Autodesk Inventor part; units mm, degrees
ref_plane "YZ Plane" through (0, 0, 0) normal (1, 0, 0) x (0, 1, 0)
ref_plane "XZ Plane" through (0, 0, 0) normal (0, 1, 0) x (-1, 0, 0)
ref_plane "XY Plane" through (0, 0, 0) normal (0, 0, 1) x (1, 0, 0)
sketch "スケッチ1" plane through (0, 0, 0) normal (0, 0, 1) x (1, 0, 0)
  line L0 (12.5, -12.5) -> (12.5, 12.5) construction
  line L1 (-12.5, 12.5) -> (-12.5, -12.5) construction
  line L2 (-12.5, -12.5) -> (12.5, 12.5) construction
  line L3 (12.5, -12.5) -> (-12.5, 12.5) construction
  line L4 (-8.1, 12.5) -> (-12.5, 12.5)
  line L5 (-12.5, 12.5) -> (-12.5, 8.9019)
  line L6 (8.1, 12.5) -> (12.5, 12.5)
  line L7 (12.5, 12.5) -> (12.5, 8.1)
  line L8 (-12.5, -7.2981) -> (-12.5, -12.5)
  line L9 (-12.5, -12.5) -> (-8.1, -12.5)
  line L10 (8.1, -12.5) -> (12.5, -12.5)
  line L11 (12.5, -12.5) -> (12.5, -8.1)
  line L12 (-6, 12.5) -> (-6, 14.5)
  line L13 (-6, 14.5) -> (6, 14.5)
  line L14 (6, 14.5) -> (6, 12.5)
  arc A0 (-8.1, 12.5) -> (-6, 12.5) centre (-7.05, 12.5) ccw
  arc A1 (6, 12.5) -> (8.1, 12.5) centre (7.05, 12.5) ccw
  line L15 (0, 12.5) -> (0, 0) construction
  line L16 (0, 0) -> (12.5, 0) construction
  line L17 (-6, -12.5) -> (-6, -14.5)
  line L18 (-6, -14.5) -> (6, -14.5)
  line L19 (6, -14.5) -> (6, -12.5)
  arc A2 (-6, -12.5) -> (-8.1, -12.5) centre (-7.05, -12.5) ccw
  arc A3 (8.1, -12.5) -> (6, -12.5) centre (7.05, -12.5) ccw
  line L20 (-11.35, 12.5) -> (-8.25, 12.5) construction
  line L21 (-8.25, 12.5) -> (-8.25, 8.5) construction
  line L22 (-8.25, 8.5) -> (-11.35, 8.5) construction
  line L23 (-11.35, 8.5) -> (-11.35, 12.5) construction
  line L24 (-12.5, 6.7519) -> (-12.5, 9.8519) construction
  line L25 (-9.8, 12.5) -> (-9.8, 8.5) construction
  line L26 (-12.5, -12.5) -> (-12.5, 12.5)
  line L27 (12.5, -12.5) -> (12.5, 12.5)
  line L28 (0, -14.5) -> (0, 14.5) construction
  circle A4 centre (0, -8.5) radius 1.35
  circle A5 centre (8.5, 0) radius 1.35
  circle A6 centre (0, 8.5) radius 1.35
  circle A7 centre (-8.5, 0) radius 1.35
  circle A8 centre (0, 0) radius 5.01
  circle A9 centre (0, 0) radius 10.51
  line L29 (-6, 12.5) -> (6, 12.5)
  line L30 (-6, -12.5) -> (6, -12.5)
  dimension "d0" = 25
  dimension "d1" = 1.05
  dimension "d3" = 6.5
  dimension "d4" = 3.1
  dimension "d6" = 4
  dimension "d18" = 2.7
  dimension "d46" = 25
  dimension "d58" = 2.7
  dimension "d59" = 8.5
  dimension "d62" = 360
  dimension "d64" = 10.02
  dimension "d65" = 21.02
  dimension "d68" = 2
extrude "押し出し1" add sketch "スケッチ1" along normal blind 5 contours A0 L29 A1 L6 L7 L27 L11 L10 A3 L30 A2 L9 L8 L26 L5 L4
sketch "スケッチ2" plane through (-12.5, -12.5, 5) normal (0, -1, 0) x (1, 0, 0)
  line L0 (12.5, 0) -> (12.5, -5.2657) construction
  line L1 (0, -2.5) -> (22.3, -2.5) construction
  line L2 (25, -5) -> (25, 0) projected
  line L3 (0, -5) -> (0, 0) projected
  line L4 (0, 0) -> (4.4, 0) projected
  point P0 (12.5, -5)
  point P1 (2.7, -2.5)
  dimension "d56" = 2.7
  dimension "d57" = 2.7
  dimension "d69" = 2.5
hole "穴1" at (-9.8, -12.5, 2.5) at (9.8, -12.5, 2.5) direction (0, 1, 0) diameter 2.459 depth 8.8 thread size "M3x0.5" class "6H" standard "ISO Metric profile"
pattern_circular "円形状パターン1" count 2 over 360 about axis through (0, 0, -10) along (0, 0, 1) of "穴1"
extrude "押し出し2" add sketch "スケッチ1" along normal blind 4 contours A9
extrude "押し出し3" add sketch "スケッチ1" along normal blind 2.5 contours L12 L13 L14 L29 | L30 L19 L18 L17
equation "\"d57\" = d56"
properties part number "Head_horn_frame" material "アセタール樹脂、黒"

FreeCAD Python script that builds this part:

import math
import FreeCAD as App
import Part
import Sketcher


def add_polygon(sketch, points):
    """Adds a closed chain of lines whose ends are joined by coincident constraints."""
    first, n = sketch.GeometryCount, len(points)
    for a, b in zip(points, points[1:] + points[:1]):
        sketch.addGeometry(Part.LineSegment(App.Vector(*a, 0), App.Vector(*b, 0)), False)
    for i in range(n):
        sketch.addConstraint(Sketcher.Constraint("Coincident", first + i, 2, first + (i + 1) % n, 1))

doc = App.newDocument("Part")
body = doc.addObject("PartDesign::Body", "Body")

# Sketch on XY plane
sketch1 = body.newObject("Sketcher::SketchObject", "Sketch")
sketch1.AttachmentSupport = (doc.getObject("XY_Plane"), [""])
sketch1.MapMode = "FlatFace"
sketch1.addGeometry([
    Part.ArcOfCircle(Part.Circle(App.Vector(-7, 12.5, 0), App.Vector(0, 0, 1), 1), math.radians(180), math.radians(360)),  # 0
    Part.LineSegment(App.Vector(-8.1, 12.5, 0), App.Vector(-12.5, 12.5, 0)),  # 1
    Part.LineSegment(App.Vector(-12.5, 12.5, 0), App.Vector(-12.5, -12.5, 0)),  # 2
    Part.LineSegment(App.Vector(-12.5, -12.5, 0), App.Vector(-8.1, -12.5, 0)),  # 3
    Part.ArcOfCircle(Part.Circle(App.Vector(-7, -12.5, 0), App.Vector(0, 0, 1), 1), math.radians(0), math.radians(180)),  # 4
    Part.LineSegment(App.Vector(-6, -12.5, 0), App.Vector(6, -12.5, 0)),  # 5
    Part.ArcOfCircle(Part.Circle(App.Vector(7, -12.5, 0), App.Vector(0, 0, 1), 1), math.radians(0), math.radians(180)),  # 6
    Part.LineSegment(App.Vector(8.1, -12.5, 0), App.Vector(12.5, -12.5, 0)),  # 7
    Part.LineSegment(App.Vector(12.5, -12.5, 0), App.Vector(12.5, 12.5, 0)),  # 8
    Part.LineSegment(App.Vector(12.5, 12.5, 0), App.Vector(8.1, 12.5, 0)),  # 9
    Part.ArcOfCircle(Part.Circle(App.Vector(7, 12.5, 0), App.Vector(0, 0, 1), 1), math.radians(180), math.radians(360)),  # 10
    Part.LineSegment(App.Vector(6, 12.5, 0), App.Vector(-6, 12.5, 0)),  # 11
    Part.Circle(App.Vector(0, 0, 0), App.Vector(0, 0, 1), 10.5),  # 12
], False)
sketch1.addConstraint([
    Sketcher.Constraint("Coincident", 0, 1, 1, 1),
    Sketcher.Constraint("Coincident", 1, 2, 2, 1),
    Sketcher.Constraint("Coincident", 2, 2, 3, 1),
    Sketcher.Constraint("Coincident", 3, 2, 4, 2),
    Sketcher.Constraint("Coincident", 4, 1, 5, 1),
    Sketcher.Constraint("Coincident", 5, 2, 6, 2),
    Sketcher.Constraint("Coincident", 6, 1, 7, 1),
    Sketcher.Constraint("Coincident", 7, 2, 8, 1),
    Sketcher.Constraint("Coincident", 8, 2, 9, 1),
    Sketcher.Constraint("Coincident", 9, 2, 10, 2),
    Sketcher.Constraint("Coincident", 10, 1, 11, 1),
    Sketcher.Constraint("Coincident", 11, 2, 0, 2),
    Sketcher.Constraint("Horizontal", 1),
    Sketcher.Constraint("Vertical", 2),
    Sketcher.Constraint("Horizontal", 3),
    Sketcher.Constraint("Horizontal", 5),
    Sketcher.Constraint("Horizontal", 7),
    Sketcher.Constraint("Vertical", 8),
    Sketcher.Constraint("Horizontal", 9),
    Sketcher.Constraint("Horizontal", 11),
    Sketcher.Constraint("Coincident", 12, 3, -1, 1),
    Sketcher.Constraint("Equal", 0, 4),
    Sketcher.Constraint("Equal", 4, 6),
    Sketcher.Constraint("Equal", 6, 10),
    Sketcher.Constraint("Symmetric", 0, 3, 6, 3, -1, 1),
    Sketcher.Constraint("Symmetric", 4, 3, 10, 3, -1, 1),
    Sketcher.Constraint("Symmetric", 1, 2, 7, 2, -1, 1),
    Sketcher.Constraint("Symmetric", 4, 3, 6, 3, -2),
    Sketcher.Constraint("Horizontal", 10, 3, 0, 1),
    Sketcher.Constraint("Horizontal", 6, 3, 2, 2),
    Sketcher.Constraint("Horizontal", 3, 2, 4, 1),
    Sketcher.Constraint("Horizontal", 1, 2, 8, 2),
    Sketcher.Constraint("Horizontal", 9, 2, 10, 1),
    Sketcher.Constraint("Diameter", 12, 21.02),
    Sketcher.Constraint("DistanceY", 2, 2, 2, 1, 25.0),
    Sketcher.Constraint("Radius", 0, 1.05),
    Sketcher.Constraint("DistanceX", 1, 2, 8, 2, 25.0),
    Sketcher.Constraint("DistanceX", 2, 2, 4, 1, 6.5),
])
pad1 = body.newObject("PartDesign::Pad", "Pad")
pad1.Profile = sketch1
pad1.Length = 5

# Sketch on XZ plane
sketch2 = body.newObject("Sketcher::SketchObject", "Sketch001")
sketch2.AttachmentSupport = (doc.getObject("XZ_Plane"), [""])
sketch2.MapMode = "FlatFace"
sketch2.AttachmentOffset = App.Placement(App.Vector(0, 0, 12.5), App.Rotation())
sketch2.addGeometry([
    Part.Circle(App.Vector(-9.8, 2.5, 0), App.Vector(0, 0, 1), 1.2),
    Part.Circle(App.Vector(9.8, 2.5, 0), App.Vector(0, 0, 1), 1.2),
], False)
sketch2.addConstraint([
    Sketcher.Constraint("Equal", 0, 1),
    Sketcher.Constraint("Symmetric", 0, 3, 1, 3, -2),
    Sketcher.Constraint("Diameter", 0, 2.459),
    Sketcher.Constraint("DistanceX", 0, 3, -1, 1, 9.8),
    Sketcher.Constraint("DistanceY", -1, 1, 0, 3, 2.5),
])
doc.recompute()
hole = body.newObject("PartDesign::Hole", "Hole")
hole.Profile = sketch2
hole.ThreadType = "None"
hole.Diameter = 2.459
hole.DepthType = "Dimension"
hole.Depth = 8.8
hole.DrillPoint = "Flat"
doc.recompute()

polarpattern = body.newObject("PartDesign::PolarPattern", "PolarPattern")
polarpattern.Originals = [hole]
polarpattern.Axis = (doc.getObject("Z_Axis"), [""])
polarpattern.Angle = 360
polarpattern.Occurrences = 2
body.Tip = polarpattern

# Sketch on XY plane
sketch3 = body.newObject("Sketcher::SketchObject", "Sketch002")
sketch3.AttachmentSupport = (doc.getObject("XY_Plane"), [""])
sketch3.MapMode = "FlatFace"
sketch3.addGeometry([
    Part.Circle(App.Vector(0, 0, 0), App.Vector(0, 0, 1), 10.5),  # 0
    Part.Circle(App.Vector(0, -8.5, 0), App.Vector(0, 0, 1), 1.4),  # 1
    Part.Circle(App.Vector(-8.5, 0, 0), App.Vector(0, 0, 1), 1.4),  # 2
    Part.Circle(App.Vector(0, 0, 0), App.Vector(0, 0, 1), 5),  # 3
    Part.Circle(App.Vector(8.5, 0, 0), App.Vector(0, 0, 1), 1.4),  # 4
    Part.Circle(App.Vector(0, 8.5, 0), App.Vector(0, 0, 1), 1.4),  # 5
], False)
sketch3.addConstraint([
    Sketcher.Constraint("Coincident", 0, 3, -1, 1),
    Sketcher.Constraint("Coincident", 3, 3, -1, 1),
    Sketcher.Constraint("Equal", 1, 2),
    Sketcher.Constraint("Equal", 2, 4),
    Sketcher.Constraint("Equal", 4, 5),
    Sketcher.Constraint("Symmetric", 2, 3, 4, 3, -1, 1),
    Sketcher.Constraint("Symmetric", 1, 3, 5, 3, -1, 1),
    Sketcher.Constraint("PointOnObject", 1, 3, -2),
    Sketcher.Constraint("PointOnObject", 2, 3, -1),
    Sketcher.Constraint("Diameter", 1, 2.7),
    Sketcher.Constraint("Diameter", 0, 21.02),
    Sketcher.Constraint("Diameter", 3, 10.02),
    Sketcher.Constraint("DistanceY", 1, 3, -1, 1, 8.5),
    Sketcher.Constraint("DistanceX", 2, 3, -1, 1, 8.5),
])
pad2 = body.newObject("PartDesign::Pad", "Pad001")
pad2.Profile = sketch3
pad2.Length = 4

# Sketch on XY plane
sketch4 = body.newObject("Sketcher::SketchObject", "Sketch003")
sketch4.AttachmentSupport = (doc.getObject("XY_Plane"), [""])
sketch4.MapMode = "FlatFace"
add_polygon(sketch4, [(-6, 14.5), (-6, 12.5), (6, 12.5), (6, 14.5)])  # lines 0-3
add_polygon(sketch4, [(6, -12.5), (-6, -12.5), (-6, -14.5), (6, -14.5)])  # lines 4-7
sketch4.addConstraint([
    Sketcher.Constraint("Vertical", 0),
    Sketcher.Constraint("Horizontal", 1),
    Sketcher.Constraint("Vertical", 2),
    Sketcher.Constraint("Horizontal", 3),
    Sketcher.Constraint("Horizontal", 4),
    Sketcher.Constraint("Vertical", 5),
    Sketcher.Constraint("Horizontal", 6),
    Sketcher.Constraint("Vertical", 7),
    Sketcher.Constraint("Symmetric", 1, 2, 4, 2, -1, 1),
    Sketcher.Constraint("Symmetric", 3, 2, 6, 2, -1, 1),
    Sketcher.Constraint("Vertical", 3, 2, 4, 2),
    Sketcher.Constraint("DistanceY", 0, 2, 0, 1, 2.0),
    Sketcher.Constraint("DistanceY", 4, 2, 0, 2, 25.0),
    Sketcher.Constraint("DistanceX", 1, 1, 1, 2, 12.0),
])
pad3 = body.newObject("PartDesign::Pad", "Pad002")
pad3.Profile = sketch4
pad3.Length = 2.5

doc.recompute()
